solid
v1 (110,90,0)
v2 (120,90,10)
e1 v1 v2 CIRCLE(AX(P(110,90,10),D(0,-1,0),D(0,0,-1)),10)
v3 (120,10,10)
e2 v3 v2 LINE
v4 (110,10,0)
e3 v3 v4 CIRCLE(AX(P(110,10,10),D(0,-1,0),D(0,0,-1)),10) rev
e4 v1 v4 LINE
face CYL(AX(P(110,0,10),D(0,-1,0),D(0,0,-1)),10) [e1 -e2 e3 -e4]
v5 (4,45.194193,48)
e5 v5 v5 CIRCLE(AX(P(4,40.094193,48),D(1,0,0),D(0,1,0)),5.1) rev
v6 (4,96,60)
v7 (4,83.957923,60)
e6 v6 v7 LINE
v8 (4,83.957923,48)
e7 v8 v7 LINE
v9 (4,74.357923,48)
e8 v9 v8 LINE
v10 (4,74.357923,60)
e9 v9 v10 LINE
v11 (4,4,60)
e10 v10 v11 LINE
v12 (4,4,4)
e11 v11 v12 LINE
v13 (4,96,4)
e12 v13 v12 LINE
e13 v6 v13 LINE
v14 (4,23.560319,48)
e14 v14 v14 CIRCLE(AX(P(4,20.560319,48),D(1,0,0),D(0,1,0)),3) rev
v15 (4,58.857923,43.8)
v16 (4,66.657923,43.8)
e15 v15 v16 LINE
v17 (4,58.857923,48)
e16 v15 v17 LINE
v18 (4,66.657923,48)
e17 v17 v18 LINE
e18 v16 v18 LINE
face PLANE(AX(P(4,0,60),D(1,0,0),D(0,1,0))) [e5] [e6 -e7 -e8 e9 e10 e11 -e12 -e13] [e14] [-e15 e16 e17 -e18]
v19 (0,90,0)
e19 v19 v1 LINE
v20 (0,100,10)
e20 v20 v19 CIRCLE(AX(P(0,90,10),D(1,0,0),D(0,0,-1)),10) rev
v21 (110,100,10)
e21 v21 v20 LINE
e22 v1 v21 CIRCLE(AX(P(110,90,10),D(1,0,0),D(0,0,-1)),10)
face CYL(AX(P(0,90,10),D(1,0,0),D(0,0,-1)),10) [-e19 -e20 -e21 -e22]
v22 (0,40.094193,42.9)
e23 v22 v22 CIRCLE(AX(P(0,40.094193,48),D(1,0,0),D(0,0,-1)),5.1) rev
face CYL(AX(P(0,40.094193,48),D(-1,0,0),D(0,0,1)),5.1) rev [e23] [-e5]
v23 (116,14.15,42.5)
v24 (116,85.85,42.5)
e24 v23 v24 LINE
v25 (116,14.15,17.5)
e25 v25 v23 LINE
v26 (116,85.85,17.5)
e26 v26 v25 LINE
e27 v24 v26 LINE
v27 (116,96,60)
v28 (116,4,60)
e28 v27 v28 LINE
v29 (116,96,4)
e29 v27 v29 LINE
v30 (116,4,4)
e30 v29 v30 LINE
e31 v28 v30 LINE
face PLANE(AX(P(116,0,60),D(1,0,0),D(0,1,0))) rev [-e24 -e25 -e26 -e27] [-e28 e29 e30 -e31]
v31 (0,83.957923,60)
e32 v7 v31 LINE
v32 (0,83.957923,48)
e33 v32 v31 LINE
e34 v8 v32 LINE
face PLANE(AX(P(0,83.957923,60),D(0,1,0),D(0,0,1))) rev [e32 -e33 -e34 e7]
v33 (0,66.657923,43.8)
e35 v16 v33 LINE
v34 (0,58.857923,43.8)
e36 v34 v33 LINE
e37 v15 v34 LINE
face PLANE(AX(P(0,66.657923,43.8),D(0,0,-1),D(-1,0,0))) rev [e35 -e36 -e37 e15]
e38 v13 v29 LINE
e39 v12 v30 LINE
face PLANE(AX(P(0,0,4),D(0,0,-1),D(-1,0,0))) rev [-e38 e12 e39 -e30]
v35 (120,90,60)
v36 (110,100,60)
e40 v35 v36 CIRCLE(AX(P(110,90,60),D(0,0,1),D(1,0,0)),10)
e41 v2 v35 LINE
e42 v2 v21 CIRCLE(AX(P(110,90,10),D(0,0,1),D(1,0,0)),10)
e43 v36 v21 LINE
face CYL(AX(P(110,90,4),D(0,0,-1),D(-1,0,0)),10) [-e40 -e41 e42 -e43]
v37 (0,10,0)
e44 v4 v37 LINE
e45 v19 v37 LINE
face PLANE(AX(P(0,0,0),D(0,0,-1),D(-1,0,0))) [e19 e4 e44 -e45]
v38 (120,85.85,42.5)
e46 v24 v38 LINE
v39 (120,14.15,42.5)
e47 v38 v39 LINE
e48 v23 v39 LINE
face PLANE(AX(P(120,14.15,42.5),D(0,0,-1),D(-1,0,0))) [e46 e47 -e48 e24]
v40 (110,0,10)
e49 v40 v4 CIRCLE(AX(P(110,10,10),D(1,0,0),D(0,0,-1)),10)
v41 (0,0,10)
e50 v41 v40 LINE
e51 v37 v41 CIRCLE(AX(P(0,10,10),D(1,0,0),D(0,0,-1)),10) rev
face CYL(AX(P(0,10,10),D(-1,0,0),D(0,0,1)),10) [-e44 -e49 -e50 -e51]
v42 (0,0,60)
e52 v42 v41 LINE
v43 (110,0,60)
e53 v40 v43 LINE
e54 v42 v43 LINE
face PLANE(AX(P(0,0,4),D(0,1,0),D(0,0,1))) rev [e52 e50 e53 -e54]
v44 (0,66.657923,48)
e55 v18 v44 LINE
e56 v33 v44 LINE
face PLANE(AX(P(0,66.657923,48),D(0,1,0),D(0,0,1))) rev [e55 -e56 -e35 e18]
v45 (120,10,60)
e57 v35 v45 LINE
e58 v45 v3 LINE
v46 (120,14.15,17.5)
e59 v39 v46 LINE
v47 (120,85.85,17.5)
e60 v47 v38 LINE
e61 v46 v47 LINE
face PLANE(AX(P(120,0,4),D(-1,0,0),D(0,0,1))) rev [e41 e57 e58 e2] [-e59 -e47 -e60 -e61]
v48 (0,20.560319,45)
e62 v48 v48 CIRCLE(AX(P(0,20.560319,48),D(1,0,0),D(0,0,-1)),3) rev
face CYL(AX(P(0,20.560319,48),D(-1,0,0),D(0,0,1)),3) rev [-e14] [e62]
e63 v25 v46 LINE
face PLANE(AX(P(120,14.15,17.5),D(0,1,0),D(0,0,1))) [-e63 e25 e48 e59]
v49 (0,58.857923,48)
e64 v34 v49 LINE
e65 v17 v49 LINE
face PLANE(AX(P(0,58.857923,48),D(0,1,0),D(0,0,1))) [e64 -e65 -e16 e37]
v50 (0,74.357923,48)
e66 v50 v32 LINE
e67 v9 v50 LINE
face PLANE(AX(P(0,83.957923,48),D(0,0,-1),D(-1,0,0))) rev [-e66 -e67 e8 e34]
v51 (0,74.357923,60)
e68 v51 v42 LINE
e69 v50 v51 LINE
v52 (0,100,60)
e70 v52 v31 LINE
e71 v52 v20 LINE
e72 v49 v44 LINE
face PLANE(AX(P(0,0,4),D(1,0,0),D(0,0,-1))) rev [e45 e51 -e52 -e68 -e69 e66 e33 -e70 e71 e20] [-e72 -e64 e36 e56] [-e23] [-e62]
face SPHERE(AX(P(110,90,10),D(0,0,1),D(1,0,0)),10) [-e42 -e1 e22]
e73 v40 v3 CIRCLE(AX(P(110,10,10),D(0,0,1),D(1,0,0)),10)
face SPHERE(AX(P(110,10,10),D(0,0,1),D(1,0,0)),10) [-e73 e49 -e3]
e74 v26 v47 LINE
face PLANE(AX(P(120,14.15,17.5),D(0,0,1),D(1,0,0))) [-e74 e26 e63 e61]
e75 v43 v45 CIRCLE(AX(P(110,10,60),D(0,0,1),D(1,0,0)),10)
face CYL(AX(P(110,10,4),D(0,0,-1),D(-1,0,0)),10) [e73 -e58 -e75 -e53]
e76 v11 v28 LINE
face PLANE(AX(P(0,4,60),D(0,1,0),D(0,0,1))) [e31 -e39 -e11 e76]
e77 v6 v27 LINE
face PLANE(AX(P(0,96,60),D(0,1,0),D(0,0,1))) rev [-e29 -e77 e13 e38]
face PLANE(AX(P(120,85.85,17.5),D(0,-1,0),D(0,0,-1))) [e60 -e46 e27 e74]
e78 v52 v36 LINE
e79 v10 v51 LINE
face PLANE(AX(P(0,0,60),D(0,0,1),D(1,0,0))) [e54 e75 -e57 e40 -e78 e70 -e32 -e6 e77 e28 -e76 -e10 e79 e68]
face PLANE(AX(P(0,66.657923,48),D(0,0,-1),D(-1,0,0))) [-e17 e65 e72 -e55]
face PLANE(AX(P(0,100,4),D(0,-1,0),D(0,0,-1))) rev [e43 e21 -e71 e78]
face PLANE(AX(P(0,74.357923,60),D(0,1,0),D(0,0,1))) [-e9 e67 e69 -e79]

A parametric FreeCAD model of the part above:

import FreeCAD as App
import Part
import Sketcher
Q = App.Units.Quantity


def edges_at(feature, points):
    """Names of the edges that pass closest to the given points."""
    edges = feature.Shape.Edges
    near = lambda p: min(range(len(edges)), key=lambda i: edges[i].distToShape(Part.Vertex(*p))[0])
    return sorted({f"Edge{near(p) + 1}" for p in points})


def add_polygon(sketch, points):
    """Adds a closed chain of lines whose ends are joined by coincident constraints."""
    first, n = sketch.GeometryCount, len(points)
    for a, b in zip(points, points[1:] + points[:1]):
        sketch.addGeometry(Part.LineSegment(App.Vector(*a, 0), App.Vector(*b, 0)), False)
    for i in range(n):
        sketch.addConstraint(Sketcher.Constraint("Coincident", first + i, 2, first + (i + 1) % n, 1))

doc = App.newDocument("Part")
body = doc.addObject("PartDesign::Body", "Body")

# Sketch on XY plane
sketch1 = body.newObject("Sketcher::SketchObject", "Sketch")
sketch1.AttachmentSupport = (doc.getObject("XY_Plane"), [""])
sketch1.MapMode = "FlatFace"
add_polygon(sketch1, [(0, 100), (0, 0), (120, 0), (120, 100)])  # lines 0-3
sketch1.addConstraint([
    Sketcher.Constraint("Vertical", 0),
    Sketcher.Constraint("Horizontal", 1),
    Sketcher.Constraint("Vertical", 2),
    Sketcher.Constraint("Horizontal", 3),
    Sketcher.Constraint("Coincident", 0, 2, -1, 1),
    Sketcher.Constraint("DistanceX", 1, 1, 1, 2, Q("120 mm")),
    Sketcher.Constraint("DistanceY", 0, 2, 0, 1, Q("100 mm")),
])
pad1 = body.newObject("PartDesign::Pad", "Pad")
pad1.Profile = sketch1
pad1.Length = 4

# Sketch on XY plane
sketch2 = body.newObject("Sketcher::SketchObject", "Sketch001")
sketch2.AttachmentSupport = (doc.getObject("XY_Plane"), [""])
sketch2.MapMode = "FlatFace"
add_polygon(sketch2, [(0, 100), (0, 0), (120, 0), (120, 100)])  # lines 0-3
add_polygon(sketch2, [(4, 96), (116, 96), (116, 4), (4, 4)])  # lines 4-7
sketch2.addConstraint([
    Sketcher.Constraint("Vertical", 0),
    Sketcher.Constraint("Horizontal", 1),
    Sketcher.Constraint("Vertical", 2),
    Sketcher.Constraint("Horizontal", 3),
    Sketcher.Constraint("Horizontal", 4),
    Sketcher.Constraint("Vertical", 5),
    Sketcher.Constraint("Horizontal", 6),
    Sketcher.Constraint("Vertical", 7),
    Sketcher.Constraint("Coincident", 0, 2, -1, 1),
    Sketcher.Constraint("DistanceX", 1, 1, 1, 2, Q("120 mm")),
    Sketcher.Constraint("DistanceX", 4, 1, 4, 2, Q("112 mm")),
    Sketcher.Constraint("DistanceY", 0, 2, 0, 1, Q("100 mm")),
    Sketcher.Constraint("DistanceY", 5, 2, 5, 1, Q("92 mm")),
    Sketcher.Constraint("DistanceX", -1, 1, 4, 2, Q("116 mm")),
    Sketcher.Constraint("DistanceY", -1, 1, 4, 2, Q("96 mm")),
])
pad2 = body.newObject("PartDesign::Pad", "Pad001")
pad2.Profile = sketch2
pad2.Length = 60

# Sketch on YZ plane
sketch3 = body.newObject("Sketcher::SketchObject", "Sketch002")
sketch3.AttachmentSupport = (doc.getObject("YZ_Plane"), [""])
sketch3.MapMode = "FlatFace"
sketch3.AttachmentOffset = App.Placement(App.Vector(0, 0, 120), App.Rotation())
add_polygon(sketch3, [(14.15, 42.5), (14.15, 17.5), (85.85, 17.5), (85.85, 42.5)])  # lines 0-3
sketch3.addConstraint([
    Sketcher.Constraint("Vertical", 0),
    Sketcher.Constraint("Horizontal", 1),
    Sketcher.Constraint("Vertical", 2),
    Sketcher.Constraint("Horizontal", 3),
    Sketcher.Constraint("DistanceY", 0, 2, 0, 1, Q("25 mm")),
    Sketcher.Constraint("DistanceX", 1, 1, 1, 2, Q("71.7 mm")),
    Sketcher.Constraint("DistanceY", -1, 1, 0, 2, Q("17.5 mm")),
    Sketcher.Constraint("DistanceX", -1, 1, 0, 2, Q("14.15 mm")),
])
pocket1 = body.newObject("PartDesign::Pocket", "Pocket")
pocket1.Profile = sketch3
pocket1.Type = "TwoLengths"
pocket1.Length = 26
pocket1.Length2 = 23
pocket1.Reversed = True
doc.recompute()

fillet = body.newObject("PartDesign::Fillet", "Fillet")
fillet.Base = (pocket1, edges_at(pocket1, [(120, 50, 0)]))
fillet.Radius = 10
doc.recompute()

fillet2 = body.newObject("PartDesign::Fillet", "Fillet001")
fillet2.Base = (fillet, edges_at(fillet, [(55, 0, 0), (120, 0, 35), (117.071, 0, 2.929)]))
fillet2.Radius = 10
doc.recompute()

fillet3 = body.newObject("PartDesign::Fillet", "Fillet002")
fillet3.Base = (fillet2, edges_at(fillet2, [(120, 100, 35), (55, 100, 0), (117.071, 100, 2.929)]))
fillet3.Radius = 10

# Sketch on YZ plane
sketch4 = body.newObject("Sketcher::SketchObject", "Sketch003")
sketch4.AttachmentSupport = (doc.getObject("YZ_Plane"), [""])
sketch4.MapMode = "FlatFace"
add_polygon(sketch4, [(83.957923, 48), (83.957923, 60), (74.357923, 60), (74.357923, 48)])  # lines 0-3
add_polygon(sketch4, [(66.657923, 43.8), (66.657923, 48), (58.857923, 48), (58.857923, 43.8)])  # lines 4-7
sketch4.addConstraint([
    Sketcher.Constraint("Vertical", 0),
    Sketcher.Constraint("Horizontal", 1),
    Sketcher.Constraint("Vertical", 2),
    Sketcher.Constraint("Horizontal", 3),
    Sketcher.Constraint("Vertical", 4),
    Sketcher.Constraint("Horizontal", 5),
    Sketcher.Constraint("Vertical", 6),
    Sketcher.Constraint("Horizontal", 7),
    Sketcher.Constraint("Horizontal", 3, 2, 4, 2),
    Sketcher.Constraint("DistanceY", 0, 1, 0, 2, Q("12 mm")),
    Sketcher.Constraint("DistanceX", 1, 2, 1, 1, Q("9.6 mm")),
    Sketcher.Constraint("DistanceX", 5, 2, 5, 1, Q("7.8 mm")),
    Sketcher.Constraint("DistanceY", 4, 1, 4, 2, Q("4.2 mm")),
    Sketcher.Constraint("DistanceY", -1, 1, 0, 2, Q("60 mm")),
    Sketcher.Constraint("DistanceX", 4, 2, 2, 2, Q("7.7 mm")),
    Sketcher.Constraint("DistanceX", -1, 1, 0, 2, Q("83.957923 mm")),
])
pocket2 = body.newObject("PartDesign::Pocket", "Pocket001")
pocket2.Profile = sketch4
pocket2.Type = "TwoLengths"
pocket2.Length = 37
pocket2.Length2 = 36
pocket2.Reversed = True

# Sketch on YZ plane
sketch5 = body.newObject("Sketcher::SketchObject", "Sketch004")
sketch5.AttachmentSupport = (doc.getObject("YZ_Plane"), [""])
sketch5.MapMode = "FlatFace"
sketch5.addGeometry([
    Part.Circle(App.Vector(40.094193, 48, 0), App.Vector(0, 0, 1), 5.1),
    Part.Circle(App.Vector(20.560319, 48, 0), App.Vector(0, 0, 1), 3),
], False)
sketch5.addConstraint([
    Sketcher.Constraint("Horizontal", 0, 3, 1, 3),
    Sketcher.Constraint("Diameter", 1, Q("6 mm")),
    Sketcher.Constraint("Diameter", 0, Q("10.2 mm")),
    Sketcher.Constraint("DistanceY", -1, 1, 0, 3, Q("48 mm")),
    Sketcher.Constraint("DistanceX", -1, 1, 1, 3, Q("20.560319 mm")),
    Sketcher.Constraint("DistanceX", -1, 1, 0, 3, Q("40.094193 mm")),
])
pocket3 = body.newObject("PartDesign::Pocket", "Pocket002")
pocket3.Profile = sketch5
pocket3.Type = "TwoLengths"
pocket3.Length = 28
pocket3.Length2 = 18

doc.recompute()
